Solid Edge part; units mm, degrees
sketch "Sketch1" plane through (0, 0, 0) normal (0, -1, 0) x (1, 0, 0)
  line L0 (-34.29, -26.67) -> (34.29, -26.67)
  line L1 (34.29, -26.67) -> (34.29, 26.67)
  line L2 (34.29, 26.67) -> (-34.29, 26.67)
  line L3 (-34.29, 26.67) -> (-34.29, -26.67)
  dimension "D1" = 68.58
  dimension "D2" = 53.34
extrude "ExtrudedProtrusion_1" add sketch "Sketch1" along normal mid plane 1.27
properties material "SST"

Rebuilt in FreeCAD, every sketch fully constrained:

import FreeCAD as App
import Part
import Sketcher
from FreeCAD import Vector
Q = App.Units.Quantity


def add_polygon(sketch, points):
    """Adds a closed chain of lines whose ends are joined by coincident constraints."""
    first, n = sketch.GeometryCount, len(points)
    for a, b in zip(points, points[1:] + points[:1]):
        sketch.addGeometry(Part.LineSegment(App.Vector(*a, 0), App.Vector(*b, 0)), False)
    for i in range(n):
        sketch.addConstraint(Sketcher.Constraint("Coincident", first + i, 2, first + (i + 1) % n, 1))

doc = App.newDocument("Part")
body = doc.addObject("PartDesign::Body", "Body")

# Sketch on XZ plane
sketch1 = body.newObject("Sketcher::SketchObject", "Sketch")
sketch1.AttachmentSupport = (doc.getObject("XZ_Plane"), [""])
sketch1.MapMode = "FlatFace"
add_polygon(sketch1, [(-34.29, 26.67), (-34.29, -26.67), (34.29, -26.67), (34.29, 26.67)])  # lines 0-3
sketch1.addConstraint([
    Sketcher.Constraint("Vertical", 0),
    Sketcher.Constraint("Horizontal", 1),
    Sketcher.Constraint("Vertical", 2),
    Sketcher.Constraint("Horizontal", 3),
    Sketcher.Constraint("Symmetric", 0, 2, 2, 2, -1, 1),
    Sketcher.Constraint("DistanceX", 0, 2, -1, 1, Q("1.35 in")),
    Sketcher.Constraint("DistanceY", 0, 2, 0, 1, Q("2.1 in")),
])
pad1 = body.newObject("PartDesign::Pad", "Pad")
pad1.Profile = sketch1
pad1.Length = Q("0.05 in")
pad1.Midplane = True

doc.recompute()
